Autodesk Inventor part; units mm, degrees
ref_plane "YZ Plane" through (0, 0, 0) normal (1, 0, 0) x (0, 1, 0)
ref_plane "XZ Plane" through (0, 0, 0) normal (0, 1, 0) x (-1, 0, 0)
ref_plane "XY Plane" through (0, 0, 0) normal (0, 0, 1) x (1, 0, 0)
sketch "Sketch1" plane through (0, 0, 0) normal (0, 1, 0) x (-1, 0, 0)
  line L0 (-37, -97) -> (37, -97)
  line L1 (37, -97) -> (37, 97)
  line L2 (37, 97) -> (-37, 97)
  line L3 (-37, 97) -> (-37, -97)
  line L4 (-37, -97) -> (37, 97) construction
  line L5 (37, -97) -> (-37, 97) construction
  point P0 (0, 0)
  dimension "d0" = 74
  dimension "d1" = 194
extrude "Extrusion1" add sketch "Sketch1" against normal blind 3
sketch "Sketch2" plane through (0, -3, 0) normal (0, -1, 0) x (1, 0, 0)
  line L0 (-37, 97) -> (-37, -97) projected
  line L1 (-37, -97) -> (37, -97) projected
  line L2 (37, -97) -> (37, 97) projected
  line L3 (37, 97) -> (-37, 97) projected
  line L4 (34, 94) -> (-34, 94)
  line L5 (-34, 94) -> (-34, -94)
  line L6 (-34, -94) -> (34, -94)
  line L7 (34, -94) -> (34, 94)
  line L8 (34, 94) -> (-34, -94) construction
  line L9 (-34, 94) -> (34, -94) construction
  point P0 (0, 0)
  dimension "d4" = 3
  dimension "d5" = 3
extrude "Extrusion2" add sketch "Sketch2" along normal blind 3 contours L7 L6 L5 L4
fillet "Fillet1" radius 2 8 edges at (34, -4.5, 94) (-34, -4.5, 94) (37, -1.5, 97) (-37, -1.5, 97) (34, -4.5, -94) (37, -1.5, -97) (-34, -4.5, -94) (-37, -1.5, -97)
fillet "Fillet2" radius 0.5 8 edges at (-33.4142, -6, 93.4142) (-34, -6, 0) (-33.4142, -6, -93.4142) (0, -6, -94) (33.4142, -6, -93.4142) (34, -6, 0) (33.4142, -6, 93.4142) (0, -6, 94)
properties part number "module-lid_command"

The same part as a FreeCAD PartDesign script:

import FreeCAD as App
import Part
import Sketcher


def edges_at(feature, points):
    """Names of the edges that pass closest to the given points."""
    edges = feature.Shape.Edges
    near = lambda p: min(range(len(edges)), key=lambda i: edges[i].distToShape(Part.Vertex(*p))[0])
    return sorted({f"Edge{near(p) + 1}" for p in points})


def add_polygon(sketch, points):
    """Adds a closed chain of lines whose ends are joined by coincident constraints."""
    first, n = sketch.GeometryCount, len(points)
    for a, b in zip(points, points[1:] + points[:1]):
        sketch.addGeometry(Part.LineSegment(App.Vector(*a, 0), App.Vector(*b, 0)), False)
    for i in range(n):
        sketch.addConstraint(Sketcher.Constraint("Coincident", first + i, 2, first + (i + 1) % n, 1))

doc = App.newDocument("Part")
params = doc.addObject("Spreadsheet::Sheet", "Params")
for row, (alias, value) in enumerate([
    ("sketch1_width", "74 mm"),
    ("sketch1_height", "194 mm"),
    ("pad1_length", "3 mm"),
    ("sketch2_width", "68 mm"),
    ("sketch2_height", "188 mm"),
    ("pad2_length", "3 mm"),
    ("fillet_radius", "2 mm"),
    ("fillet2_radius", "0.5 mm"),
], start=1):
    params.set(f"A{row}", alias)
    params.set(f"B{row}", "=" + value)
    params.setAlias(f"B{row}", alias)

body = doc.addObject("PartDesign::Body", "Body")

sketch1 = doc.addObject("Sketcher::SketchObject", "Sketch")
body.addObject(sketch1)
sketch1.AttachmentSupport = (doc.XZ_Plane, [""])
sketch1.MapMode = "FlatFace"
add_polygon(sketch1, [(37, 97), (37, -97), (-37, -97), (-37, 97)])
sketch1.addConstraint(Sketcher.Constraint("Vertical", 0))
sketch1.addConstraint(Sketcher.Constraint("Horizontal", 1))
sketch1.addConstraint(Sketcher.Constraint("Vertical", 2))
sketch1.addConstraint(Sketcher.Constraint("Horizontal", 3))
sketch1.addConstraint(Sketcher.Constraint("Symmetric", 0, 2, 2, 2, -1, 1))
sketch1.addConstraint(Sketcher.Constraint("DistanceX", 1, 2, 1, 1, 74.0))
sketch1.addConstraint(Sketcher.Constraint("DistanceY", 0, 2, 0, 1, 194.0))
sketch1.setExpression("Constraints[9]", "Params.sketch1_width")
sketch1.setExpression("Constraints[10]", "Params.sketch1_height")
pad1 = doc.addObject("PartDesign::Pad", "Pad")
body.addObject(pad1)
pad1.Profile = sketch1
pad1.setExpression("Length", "Params.pad1_length")

sketch2 = doc.addObject("Sketcher::SketchObject", "Sketch001")
body.addObject(sketch2)
sketch2.AttachmentSupport = (doc.XZ_Plane, [""])
sketch2.MapMode = "FlatFace"
sketch2.AttachmentOffset = App.Placement(App.Vector(0, 0, 3), App.Rotation())
add_polygon(sketch2, [(34, -94), (34, 94), (-34, 94), (-34, -94)])
sketch2.addConstraint(Sketcher.Constraint("Vertical", 0))
sketch2.addConstraint(Sketcher.Constraint("Horizontal", 1))
sketch2.addConstraint(Sketcher.Constraint("Vertical", 2))
sketch2.addConstraint(Sketcher.Constraint("Horizontal", 3))
sketch2.addConstraint(Sketcher.Constraint("Symmetric", 0, 2, 2, 2, -1, 1))
sketch2.addConstraint(Sketcher.Constraint("DistanceX", 1, 2, 1, 1, 68.0))
sketch2.addConstraint(Sketcher.Constraint("DistanceY", 0, 1, 0, 2, 188.0))
sketch2.setExpression("Constraints[9]", "Params.sketch2_width")
sketch2.setExpression("Constraints[10]", "Params.sketch2_height")
pad2 = doc.addObject("PartDesign::Pad", "Pad001")
body.addObject(pad2)
pad2.Profile = sketch2
pad2.setExpression("Length", "Params.pad2_length")
doc.recompute()

fillet = doc.addObject("PartDesign::Fillet", "Fillet")
body.addObject(fillet)
fillet.Base = (pad2, edges_at(pad2, [
    (34, -4.5, 94),
    (-34, -4.5, 94),
    (37, -1.5, 97),
    (-37, -1.5, 97),
    (34, -4.5, -94),
    (37, -1.5, -97),
    (-34, -4.5, -94),
    (-37, -1.5, -97),
]))
fillet.setExpression("Radius", "Params.fillet_radius")
doc.recompute()

fillet2 = doc.addObject("PartDesign::Fillet", "Fillet001")
body.addObject(fillet2)
fillet2.Base = (fillet, edges_at(fillet, [
    (-33.414, -6, 93.414),
    (-34, -6, 0),
    (-33.414, -6, -93.414),
    (0, -6, -94),
    (33.414, -6, -93.414),
    (34, -6, 0),
    (33.414, -6, 93.414),
    (0, -6, 94),
]))
fillet2.setExpression("Radius", "Params.fillet2_radius")

doc.recompute()
